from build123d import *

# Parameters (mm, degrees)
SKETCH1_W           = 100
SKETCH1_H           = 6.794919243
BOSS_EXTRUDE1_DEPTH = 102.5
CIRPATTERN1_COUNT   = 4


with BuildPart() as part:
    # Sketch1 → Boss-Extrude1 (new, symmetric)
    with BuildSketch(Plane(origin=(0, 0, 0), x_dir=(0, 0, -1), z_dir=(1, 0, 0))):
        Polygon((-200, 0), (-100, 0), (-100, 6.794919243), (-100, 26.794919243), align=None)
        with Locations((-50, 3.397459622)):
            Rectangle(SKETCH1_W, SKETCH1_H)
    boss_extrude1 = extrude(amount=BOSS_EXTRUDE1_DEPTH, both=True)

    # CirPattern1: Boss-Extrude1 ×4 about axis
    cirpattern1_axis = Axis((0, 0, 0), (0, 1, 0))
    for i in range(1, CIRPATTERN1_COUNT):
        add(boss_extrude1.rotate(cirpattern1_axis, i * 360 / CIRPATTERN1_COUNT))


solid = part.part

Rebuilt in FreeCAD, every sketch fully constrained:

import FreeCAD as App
import Part
import Sketcher
from FreeCAD import Vector
Q = App.Units.Quantity


def add_polygon(sketch, points):
    """Adds a closed chain of lines whose ends are joined by coincident constraints."""
    first, n = sketch.GeometryCount, len(points)
    for a, b in zip(points, points[1:] + points[:1]):
        sketch.addGeometry(Part.LineSegment(App.Vector(*a, 0), App.Vector(*b, 0)), False)
    for i in range(n):
        sketch.addConstraint(Sketcher.Constraint("Coincident", first + i, 2, first + (i + 1) % n, 1))

doc = App.newDocument("Part")
body = doc.addObject("PartDesign::Body", "Body")

sketch1 = doc.addObject("Sketcher::SketchObject", "Sketch")
body.addObject(sketch1)
sketch1.AttachmentSupport = (doc.YZ_Plane, [""])
sketch1.MapMode = "FlatFace"
add_polygon(sketch1, [(0, 200), (0, 0), (7, 0), (7, 100), (27, 100)])
sketch1.addConstraint([
    Sketcher.Constraint("Vertical", 0),
    Sketcher.Constraint("Horizontal", 1),
    Sketcher.Constraint("Vertical", 2),
    Sketcher.Constraint("Horizontal", 3),
    Sketcher.Constraint("Coincident", 0, 2, -1, 1),
    Sketcher.Constraint("DistanceX", 3, 1, 3, 2, 20.0),
    Sketcher.Constraint("DistanceY", 0, 2, 0, 1, 200.0),
    Sketcher.Constraint("DistanceY", 2, 1, 2, 2, 100.0),
    Sketcher.Constraint("Angle", 4, Q("105 deg")),
])
pad1 = doc.addObject("PartDesign::Pad", "Pad")
body.addObject(pad1)
pad1.Profile = sketch1
pad1.Length = 205
pad1.Midplane = True
doc.recompute()

polarpattern = doc.addObject("PartDesign::PolarPattern", "PolarPattern")
body.addObject(polarpattern)
polarpattern.Originals = [pad1]
polarpattern.Axis = (doc.Y_Axis, [""])
polarpattern.Angle = 360
polarpattern.Occurrences = 4
body.Tip = polarpattern

doc.recompute()
